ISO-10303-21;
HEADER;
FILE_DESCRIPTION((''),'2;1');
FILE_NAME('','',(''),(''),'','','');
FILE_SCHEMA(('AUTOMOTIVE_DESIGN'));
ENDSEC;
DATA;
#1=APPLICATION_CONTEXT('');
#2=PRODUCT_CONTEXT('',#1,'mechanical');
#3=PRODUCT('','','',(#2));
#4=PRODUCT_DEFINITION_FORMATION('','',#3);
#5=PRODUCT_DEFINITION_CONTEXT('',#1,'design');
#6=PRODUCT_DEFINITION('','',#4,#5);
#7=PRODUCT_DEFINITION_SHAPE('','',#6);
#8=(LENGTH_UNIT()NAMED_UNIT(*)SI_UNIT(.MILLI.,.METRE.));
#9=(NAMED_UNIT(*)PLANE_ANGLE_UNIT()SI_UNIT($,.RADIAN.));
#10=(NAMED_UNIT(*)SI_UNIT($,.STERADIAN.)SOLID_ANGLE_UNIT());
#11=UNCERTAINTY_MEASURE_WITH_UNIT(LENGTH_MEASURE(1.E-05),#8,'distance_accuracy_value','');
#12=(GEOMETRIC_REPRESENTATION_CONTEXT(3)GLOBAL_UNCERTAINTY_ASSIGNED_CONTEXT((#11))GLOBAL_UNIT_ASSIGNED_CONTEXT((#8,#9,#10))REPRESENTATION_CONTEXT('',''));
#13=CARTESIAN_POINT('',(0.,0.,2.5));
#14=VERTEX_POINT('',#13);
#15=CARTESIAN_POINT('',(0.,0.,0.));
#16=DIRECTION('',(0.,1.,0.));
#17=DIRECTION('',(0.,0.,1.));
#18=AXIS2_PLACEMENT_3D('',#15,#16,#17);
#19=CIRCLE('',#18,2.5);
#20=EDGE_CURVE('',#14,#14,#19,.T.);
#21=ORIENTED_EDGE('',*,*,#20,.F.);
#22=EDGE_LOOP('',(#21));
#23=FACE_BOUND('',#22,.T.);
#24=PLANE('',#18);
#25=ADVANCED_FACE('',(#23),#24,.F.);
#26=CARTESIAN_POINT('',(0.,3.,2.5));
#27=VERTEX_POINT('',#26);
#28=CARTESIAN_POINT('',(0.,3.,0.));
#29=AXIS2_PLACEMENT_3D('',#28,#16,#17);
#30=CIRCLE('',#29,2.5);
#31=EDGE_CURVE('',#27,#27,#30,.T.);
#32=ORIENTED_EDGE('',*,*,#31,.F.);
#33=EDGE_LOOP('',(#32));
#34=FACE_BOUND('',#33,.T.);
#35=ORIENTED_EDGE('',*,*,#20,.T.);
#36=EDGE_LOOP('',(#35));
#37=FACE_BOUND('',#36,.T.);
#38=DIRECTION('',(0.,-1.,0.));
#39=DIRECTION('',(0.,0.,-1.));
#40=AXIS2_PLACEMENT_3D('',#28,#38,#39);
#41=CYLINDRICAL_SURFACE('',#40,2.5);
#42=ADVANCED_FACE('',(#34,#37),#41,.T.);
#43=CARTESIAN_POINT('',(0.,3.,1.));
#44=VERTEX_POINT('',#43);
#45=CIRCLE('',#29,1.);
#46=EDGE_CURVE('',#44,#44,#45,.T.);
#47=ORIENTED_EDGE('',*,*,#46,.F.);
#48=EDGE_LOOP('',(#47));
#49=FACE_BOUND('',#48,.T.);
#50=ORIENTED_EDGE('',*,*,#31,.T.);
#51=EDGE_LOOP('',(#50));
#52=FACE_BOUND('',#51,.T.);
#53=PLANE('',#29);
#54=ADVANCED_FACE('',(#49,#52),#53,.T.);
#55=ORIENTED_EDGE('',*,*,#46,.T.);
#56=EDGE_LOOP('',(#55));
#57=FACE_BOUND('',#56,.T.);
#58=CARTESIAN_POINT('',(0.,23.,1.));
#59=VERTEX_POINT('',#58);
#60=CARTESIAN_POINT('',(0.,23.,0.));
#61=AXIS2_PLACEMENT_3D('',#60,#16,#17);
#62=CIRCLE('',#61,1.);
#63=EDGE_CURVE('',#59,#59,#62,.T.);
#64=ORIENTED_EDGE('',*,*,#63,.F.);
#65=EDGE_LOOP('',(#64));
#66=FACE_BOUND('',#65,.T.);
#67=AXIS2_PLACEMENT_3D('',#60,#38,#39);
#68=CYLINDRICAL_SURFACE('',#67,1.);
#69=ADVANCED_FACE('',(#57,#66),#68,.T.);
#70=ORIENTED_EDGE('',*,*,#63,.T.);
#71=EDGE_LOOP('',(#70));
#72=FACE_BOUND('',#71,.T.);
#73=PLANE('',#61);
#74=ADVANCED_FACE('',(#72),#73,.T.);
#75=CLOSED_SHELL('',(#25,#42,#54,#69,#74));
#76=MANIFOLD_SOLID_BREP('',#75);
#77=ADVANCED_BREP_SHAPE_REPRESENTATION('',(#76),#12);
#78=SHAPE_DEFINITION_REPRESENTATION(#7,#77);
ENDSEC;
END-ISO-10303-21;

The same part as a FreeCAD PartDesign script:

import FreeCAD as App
import Part
import Sketcher

V = App.Vector
Q = App.Units.Quantity

doc = App.newDocument("Part")
body = doc.addObject("PartDesign::Body", "Body")

sketch1 = body.newObject("Sketcher::SketchObject", "Sketch")
sketch1.AttachmentSupport = (doc.getObject("XZ_Plane"), [""])
sketch1.MapMode = "FlatFace"
sketch1.addGeometry(Part.Circle(V(0, 0, 0), V(0, 0, 1), 2.5), False)
sketch1.addConstraint(Sketcher.Constraint("Coincident", 0, 3, -1, 1))
sketch1.addConstraint(Sketcher.Constraint("Diameter", 0, Q("5 mm")))
pad1 = body.newObject("PartDesign::Pad", "Pad")
pad1.Profile = sketch1
pad1.Length = 3
pad1.Reversed = True

sketch2 = body.newObject("Sketcher::SketchObject", "Sketch001")
sketch2.AttachmentSupport = (doc.getObject("XZ_Plane"), [""])
sketch2.MapMode = "FlatFace"
sketch2.AttachmentOffset = App.Placement(V(0, 0, -3), App.Rotation())
sketch2.addGeometry(Part.Circle(V(0, 0, 0), V(0, 0, 1), 1), False)
sketch2.addConstraint(Sketcher.Constraint("Coincident", 0, 3, -1, 1))
sketch2.addConstraint(Sketcher.Constraint("Diameter", 0, Q("2 mm")))
pad2 = body.newObject("PartDesign::Pad", "Pad001")
pad2.Profile = sketch2
pad2.Length = 20
pad2.Reversed = True

doc.recompute()
